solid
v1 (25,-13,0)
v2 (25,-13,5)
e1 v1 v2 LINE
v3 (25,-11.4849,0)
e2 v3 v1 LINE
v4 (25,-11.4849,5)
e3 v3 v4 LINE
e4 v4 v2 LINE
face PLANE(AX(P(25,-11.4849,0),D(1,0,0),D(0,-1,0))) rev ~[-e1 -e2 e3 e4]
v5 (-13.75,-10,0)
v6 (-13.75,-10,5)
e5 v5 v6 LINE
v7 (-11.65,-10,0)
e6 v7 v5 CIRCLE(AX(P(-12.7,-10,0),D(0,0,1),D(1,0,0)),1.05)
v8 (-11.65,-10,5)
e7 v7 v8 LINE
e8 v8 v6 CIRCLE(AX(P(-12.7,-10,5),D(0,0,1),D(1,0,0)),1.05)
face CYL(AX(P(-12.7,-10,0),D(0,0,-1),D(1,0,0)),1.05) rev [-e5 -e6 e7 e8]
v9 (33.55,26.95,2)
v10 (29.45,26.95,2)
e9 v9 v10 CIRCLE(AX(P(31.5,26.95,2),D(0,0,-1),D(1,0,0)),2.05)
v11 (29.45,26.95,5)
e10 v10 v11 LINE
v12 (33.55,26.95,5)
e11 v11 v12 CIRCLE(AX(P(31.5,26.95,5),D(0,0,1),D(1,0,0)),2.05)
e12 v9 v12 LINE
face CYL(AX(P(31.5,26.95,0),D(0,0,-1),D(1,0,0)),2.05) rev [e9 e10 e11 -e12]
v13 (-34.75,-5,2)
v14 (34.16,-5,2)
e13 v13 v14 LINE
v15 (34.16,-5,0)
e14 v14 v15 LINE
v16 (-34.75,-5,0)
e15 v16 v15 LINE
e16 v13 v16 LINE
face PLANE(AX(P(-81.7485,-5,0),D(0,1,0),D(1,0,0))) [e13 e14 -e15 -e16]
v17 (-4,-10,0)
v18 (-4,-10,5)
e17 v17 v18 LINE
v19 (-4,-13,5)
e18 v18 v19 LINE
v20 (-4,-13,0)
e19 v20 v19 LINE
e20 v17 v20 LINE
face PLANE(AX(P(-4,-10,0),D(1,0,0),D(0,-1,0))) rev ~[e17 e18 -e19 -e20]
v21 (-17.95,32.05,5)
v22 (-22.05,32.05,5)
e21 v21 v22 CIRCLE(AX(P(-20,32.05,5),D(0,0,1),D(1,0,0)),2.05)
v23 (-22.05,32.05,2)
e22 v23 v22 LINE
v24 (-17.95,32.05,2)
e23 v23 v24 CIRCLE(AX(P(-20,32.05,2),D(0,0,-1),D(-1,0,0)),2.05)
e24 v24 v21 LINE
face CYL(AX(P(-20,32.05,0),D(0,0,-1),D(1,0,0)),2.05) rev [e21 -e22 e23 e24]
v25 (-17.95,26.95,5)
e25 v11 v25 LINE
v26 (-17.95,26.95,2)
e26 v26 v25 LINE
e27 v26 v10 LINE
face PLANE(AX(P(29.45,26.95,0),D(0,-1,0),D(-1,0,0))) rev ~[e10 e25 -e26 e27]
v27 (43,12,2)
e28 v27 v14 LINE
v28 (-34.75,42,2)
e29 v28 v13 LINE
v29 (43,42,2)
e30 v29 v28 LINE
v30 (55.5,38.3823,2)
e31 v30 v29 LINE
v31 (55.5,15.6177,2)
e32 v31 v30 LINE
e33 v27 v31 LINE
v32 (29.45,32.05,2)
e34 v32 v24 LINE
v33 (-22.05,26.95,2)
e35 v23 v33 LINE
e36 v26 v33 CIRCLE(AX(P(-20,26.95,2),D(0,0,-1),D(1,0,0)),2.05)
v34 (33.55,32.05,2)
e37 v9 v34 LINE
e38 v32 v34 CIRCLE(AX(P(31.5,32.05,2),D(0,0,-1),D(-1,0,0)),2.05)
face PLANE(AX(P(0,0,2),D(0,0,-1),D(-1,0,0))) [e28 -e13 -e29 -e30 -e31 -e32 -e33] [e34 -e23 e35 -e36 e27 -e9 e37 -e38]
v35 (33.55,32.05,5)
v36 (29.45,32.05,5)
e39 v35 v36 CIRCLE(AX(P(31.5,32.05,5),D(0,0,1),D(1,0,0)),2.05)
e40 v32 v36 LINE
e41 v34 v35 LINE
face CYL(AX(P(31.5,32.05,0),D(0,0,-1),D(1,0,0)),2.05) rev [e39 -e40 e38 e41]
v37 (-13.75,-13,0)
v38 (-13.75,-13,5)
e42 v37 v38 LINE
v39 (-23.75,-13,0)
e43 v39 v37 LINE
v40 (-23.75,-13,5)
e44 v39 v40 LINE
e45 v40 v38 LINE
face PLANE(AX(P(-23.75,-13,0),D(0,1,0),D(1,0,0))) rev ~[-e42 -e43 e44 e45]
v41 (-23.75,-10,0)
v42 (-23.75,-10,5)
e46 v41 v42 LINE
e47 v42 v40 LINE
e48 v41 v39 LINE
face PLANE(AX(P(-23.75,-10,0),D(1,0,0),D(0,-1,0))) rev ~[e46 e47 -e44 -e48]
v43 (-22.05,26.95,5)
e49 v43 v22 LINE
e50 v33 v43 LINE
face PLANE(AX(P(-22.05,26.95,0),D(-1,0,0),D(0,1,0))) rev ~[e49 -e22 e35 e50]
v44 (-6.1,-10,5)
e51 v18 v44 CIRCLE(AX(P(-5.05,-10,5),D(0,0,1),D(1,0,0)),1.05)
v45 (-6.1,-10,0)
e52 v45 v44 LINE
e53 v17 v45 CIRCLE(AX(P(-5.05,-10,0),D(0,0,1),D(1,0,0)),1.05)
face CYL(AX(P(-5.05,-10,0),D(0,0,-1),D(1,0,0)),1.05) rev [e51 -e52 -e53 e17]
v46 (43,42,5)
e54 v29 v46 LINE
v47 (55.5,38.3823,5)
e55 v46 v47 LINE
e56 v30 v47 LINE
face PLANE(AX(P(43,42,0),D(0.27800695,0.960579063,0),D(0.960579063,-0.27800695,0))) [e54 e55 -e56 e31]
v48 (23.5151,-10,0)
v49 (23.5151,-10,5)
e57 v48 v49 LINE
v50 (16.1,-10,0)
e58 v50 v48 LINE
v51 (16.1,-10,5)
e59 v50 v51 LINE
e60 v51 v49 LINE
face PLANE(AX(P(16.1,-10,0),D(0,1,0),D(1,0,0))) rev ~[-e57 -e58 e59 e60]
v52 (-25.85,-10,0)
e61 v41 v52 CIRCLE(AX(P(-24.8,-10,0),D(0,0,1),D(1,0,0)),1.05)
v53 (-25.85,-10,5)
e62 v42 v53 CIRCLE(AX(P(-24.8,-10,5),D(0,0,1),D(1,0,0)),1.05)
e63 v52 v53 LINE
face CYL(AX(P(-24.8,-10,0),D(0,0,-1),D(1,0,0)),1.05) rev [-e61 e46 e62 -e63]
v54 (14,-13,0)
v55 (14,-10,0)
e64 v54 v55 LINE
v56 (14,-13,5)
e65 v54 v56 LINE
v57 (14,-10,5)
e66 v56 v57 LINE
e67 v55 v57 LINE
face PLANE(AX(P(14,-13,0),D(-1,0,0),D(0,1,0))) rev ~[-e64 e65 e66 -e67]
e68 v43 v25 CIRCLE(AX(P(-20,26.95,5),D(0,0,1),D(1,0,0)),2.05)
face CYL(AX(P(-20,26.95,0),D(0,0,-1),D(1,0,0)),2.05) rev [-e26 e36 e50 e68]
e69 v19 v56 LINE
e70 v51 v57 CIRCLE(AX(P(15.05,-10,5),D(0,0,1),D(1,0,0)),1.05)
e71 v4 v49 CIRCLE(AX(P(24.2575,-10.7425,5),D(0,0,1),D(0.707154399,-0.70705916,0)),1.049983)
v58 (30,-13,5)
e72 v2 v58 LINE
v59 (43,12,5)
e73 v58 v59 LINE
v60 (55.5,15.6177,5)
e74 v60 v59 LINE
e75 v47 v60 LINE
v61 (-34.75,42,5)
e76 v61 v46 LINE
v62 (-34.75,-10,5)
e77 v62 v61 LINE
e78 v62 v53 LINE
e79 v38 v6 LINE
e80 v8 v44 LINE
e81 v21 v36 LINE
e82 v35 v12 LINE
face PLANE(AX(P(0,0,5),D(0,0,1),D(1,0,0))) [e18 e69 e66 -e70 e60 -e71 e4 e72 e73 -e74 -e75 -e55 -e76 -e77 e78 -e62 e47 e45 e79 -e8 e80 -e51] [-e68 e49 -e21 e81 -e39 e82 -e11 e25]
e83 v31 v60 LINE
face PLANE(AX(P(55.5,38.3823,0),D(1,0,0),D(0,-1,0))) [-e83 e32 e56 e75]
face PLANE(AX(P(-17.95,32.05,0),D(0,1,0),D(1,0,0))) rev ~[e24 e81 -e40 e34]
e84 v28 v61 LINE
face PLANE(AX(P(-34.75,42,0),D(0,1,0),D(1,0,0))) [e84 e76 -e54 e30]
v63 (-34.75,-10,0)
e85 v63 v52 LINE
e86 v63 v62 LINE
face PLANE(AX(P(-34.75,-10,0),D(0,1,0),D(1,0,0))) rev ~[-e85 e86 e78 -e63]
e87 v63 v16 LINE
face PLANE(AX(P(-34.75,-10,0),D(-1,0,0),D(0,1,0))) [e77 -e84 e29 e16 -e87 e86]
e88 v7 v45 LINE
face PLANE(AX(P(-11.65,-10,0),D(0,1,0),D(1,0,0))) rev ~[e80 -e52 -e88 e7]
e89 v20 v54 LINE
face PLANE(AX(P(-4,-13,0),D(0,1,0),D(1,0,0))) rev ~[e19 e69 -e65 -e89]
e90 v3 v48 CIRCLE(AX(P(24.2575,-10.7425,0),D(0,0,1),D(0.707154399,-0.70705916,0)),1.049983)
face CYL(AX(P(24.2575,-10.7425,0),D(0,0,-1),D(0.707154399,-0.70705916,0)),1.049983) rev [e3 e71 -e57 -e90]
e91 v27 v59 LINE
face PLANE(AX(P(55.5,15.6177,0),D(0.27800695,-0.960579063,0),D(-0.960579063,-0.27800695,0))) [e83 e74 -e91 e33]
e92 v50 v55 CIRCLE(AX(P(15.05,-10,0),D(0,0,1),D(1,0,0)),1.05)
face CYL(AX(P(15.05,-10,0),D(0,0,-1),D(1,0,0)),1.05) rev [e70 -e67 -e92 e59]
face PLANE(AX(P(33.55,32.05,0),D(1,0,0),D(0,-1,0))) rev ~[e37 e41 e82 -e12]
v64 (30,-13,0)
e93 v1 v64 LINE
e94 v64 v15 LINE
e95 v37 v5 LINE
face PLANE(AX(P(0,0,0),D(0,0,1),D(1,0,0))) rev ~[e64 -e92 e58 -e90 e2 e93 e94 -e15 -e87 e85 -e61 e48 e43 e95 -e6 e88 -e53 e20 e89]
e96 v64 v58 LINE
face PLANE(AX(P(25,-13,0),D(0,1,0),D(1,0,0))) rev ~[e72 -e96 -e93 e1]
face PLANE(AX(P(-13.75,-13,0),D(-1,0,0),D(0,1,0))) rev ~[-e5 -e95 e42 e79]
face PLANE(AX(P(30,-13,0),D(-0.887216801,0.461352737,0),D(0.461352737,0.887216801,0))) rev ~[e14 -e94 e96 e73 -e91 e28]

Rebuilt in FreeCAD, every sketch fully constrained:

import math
import FreeCAD as App
import Part
import Sketcher
from FreeCAD import Vector

doc = App.newDocument("Part")
body = doc.addObject("PartDesign::Body", "Body")

# Sketch on XY plane
sketch1 = body.newObject("Sketcher::SketchObject", "Sketch")
sketch1.AttachmentSupport = (doc.getObject("XY_Plane"), [""])
sketch1.MapMode = "FlatFace"
sketch1.addGeometry([
    Part.ArcOfCircle(Part.Circle(Vector(24.3, -10.7, 0), Vector(0, 0, 1), 1), math.radians(-45), math.radians(135)),  # 0
    Part.LineSegment(Vector(25, -11.5, 0), Vector(25, -13, 0)),  # 1
    Part.LineSegment(Vector(25, -13, 0), Vector(30, -13, 0)),  # 2
    Part.LineSegment(Vector(30, -13, 0), Vector(43, 12, 0)),  # 3
    Part.LineSegment(Vector(43, 12, 0), Vector(55.5, 15.6, 0)),  # 4
    Part.LineSegment(Vector(55.5, 15.6, 0), Vector(55.5, 38.4, 0)),  # 5
    Part.LineSegment(Vector(55.5, 38.4, 0), Vector(43, 42, 0)),  # 6
    Part.LineSegment(Vector(43, 42, 0), Vector(-34.8, 42, 0)),  # 7
    Part.LineSegment(Vector(-34.8, 42, 0), Vector(-34.8, -10, 0)),  # 8
    Part.LineSegment(Vector(-34.8, -10, 0), Vector(-25.9, -10, 0)),  # 9
    Part.ArcOfCircle(Part.Circle(Vector(-24.8, -10, 0), Vector(0, 0, 1), 1.1), math.radians(0), math.radians(180)),  # 10
    Part.LineSegment(Vector(-23.8, -10, 0), Vector(-23.8, -13, 0)),  # 11
    Part.LineSegment(Vector(-23.8, -13, 0), Vector(-13.8, -13, 0)),  # 12
    Part.LineSegment(Vector(-13.8, -13, 0), Vector(-13.8, -10, 0)),  # 13
    Part.ArcOfCircle(Part.Circle(Vector(-12.7, -10, 0), Vector(0, 0, 1), 1), math.radians(0), math.radians(180)),  # 14
    Part.LineSegment(Vector(-11.7, -10, 0), Vector(-6.1, -10, 0)),  # 15
    Part.ArcOfCircle(Part.Circle(Vector(-5, -10, 0), Vector(0, 0, 1), 1), math.radians(0), math.radians(180)),  # 16
    Part.LineSegment(Vector(-4, -10, 0), Vector(-4, -13, 0)),  # 17
    Part.LineSegment(Vector(-4, -13, 0), Vector(14, -13, 0)),  # 18
    Part.LineSegment(Vector(14, -13, 0), Vector(14, -10, 0)),  # 19
    Part.ArcOfCircle(Part.Circle(Vector(15.1, -10, 0), Vector(0, 0, 1), 1.1), math.radians(0), math.radians(180)),  # 20
    Part.LineSegment(Vector(16.1, -10, 0), Vector(23.5, -10, 0)),  # 21
    Part.LineSegment(Vector(-22.1, 26.9, 0), Vector(-22.1, 32, 0)),  # 22
    Part.ArcOfCircle(Part.Circle(Vector(-20, 32, 0), Vector(0, 0, 1), 2), math.radians(0), math.radians(180)),  # 23
    Part.LineSegment(Vector(-17.9, 32, 0), Vector(29.4, 32, 0)),  # 24
    Part.ArcOfCircle(Part.Circle(Vector(31.5, 32, 0), Vector(0, 0, 1), 2), math.radians(0), math.radians(180)),  # 25
    Part.LineSegment(Vector(33.5, 32, 0), Vector(33.5, 26.9, 0)),  # 26
    Part.ArcOfCircle(Part.Circle(Vector(31.5, 26.9, 0), Vector(0, 0, 1), 2), math.radians(180), math.radians(360)),  # 27
    Part.LineSegment(Vector(29.4, 26.9, 0), Vector(-17.9, 26.9, 0)),  # 28
    Part.ArcOfCircle(Part.Circle(Vector(-20, 26.9, 0), Vector(0, 0, 1), 2), math.radians(180), math.radians(360)),  # 29
    Part.Circle(Vector(51, 19, 0), Vector(0, 0, 1), 1.6),  # 30
    Part.Circle(Vector(51, 35, 0), Vector(0, 0, 1), 1.6),  # 31
], False)
sketch1.addConstraint([
    Sketcher.Constraint("Coincident", 0, 1, 1, 1),
    Sketcher.Constraint("Coincident", 1, 2, 2, 1),
    Sketcher.Constraint("Coincident", 2, 2, 3, 1),
    Sketcher.Constraint("Coincident", 3, 2, 4, 1),
    Sketcher.Constraint("Coincident", 4, 2, 5, 1),
    Sketcher.Constraint("Coincident", 5, 2, 6, 1),
    Sketcher.Constraint("Coincident", 6, 2, 7, 1),
    Sketcher.Constraint("Coincident", 7, 2, 8, 1),
    Sketcher.Constraint("Coincident", 8, 2, 9, 1),
    Sketcher.Constraint("Coincident", 9, 2, 10, 2),
    Sketcher.Constraint("Tangent", 10, 1, 11, 1),
    Sketcher.Constraint("Coincident", 11, 2, 12, 1),
    Sketcher.Constraint("Coincident", 12, 2, 13, 1),
    Sketcher.Constraint("Tangent", 13, 2, 14, 2),
    Sketcher.Constraint("Coincident", 14, 1, 15, 1),
    Sketcher.Constraint("Coincident", 15, 2, 16, 2),
    Sketcher.Constraint("Tangent", 16, 1, 17, 1),
    Sketcher.Constraint("Coincident", 17, 2, 18, 1),
    Sketcher.Constraint("Coincident", 18, 2, 19, 1),
    Sketcher.Constraint("Tangent", 19, 2, 20, 2),
    Sketcher.Constraint("Coincident", 20, 1, 21, 1),
    Sketcher.Constraint("Coincident", 21, 2, 0, 2),
    Sketcher.Constraint("Tangent", 22, 2, 23, 2),
    Sketcher.Constraint("Coincident", 23, 1, 24, 1),
    Sketcher.Constraint("Coincident", 24, 2, 25, 2),
    Sketcher.Constraint("Tangent", 25, 1, 26, 1),
    Sketcher.Constraint("Tangent", 26, 2, 27, 2),
    Sketcher.Constraint("Coincident", 27, 1, 28, 1),
    Sketcher.Constraint("Coincident", 28, 2, 29, 2),
    Sketcher.Constraint("Tangent", 29, 1, 22, 1),
    Sketcher.Constraint("Vertical", 1),
    Sketcher.Constraint("Horizontal", 2),
    Sketcher.Constraint("Vertical", 5),
    Sketcher.Constraint("Horizontal", 7),
    Sketcher.Constraint("Vertical", 8),
    Sketcher.Constraint("Horizontal", 9),
    Sketcher.Constraint("Vertical", 11),
    Sketcher.Constraint("Horizontal", 12),
    Sketcher.Constraint("Vertical", 13),
    Sketcher.Constraint("Horizontal", 15),
    Sketcher.Constraint("Vertical", 17),
    Sketcher.Constraint("Horizontal", 18),
    Sketcher.Constraint("Vertical", 19),
    Sketcher.Constraint("Horizontal", 21),
    Sketcher.Constraint("Vertical", 22),
    Sketcher.Constraint("Horizontal", 24),
    Sketcher.Constraint("Vertical", 26),
    Sketcher.Constraint("Horizontal", 28),
    Sketcher.Constraint("Equal", 0, 10),
    Sketcher.Constraint("Equal", 10, 14),
    Sketcher.Constraint("Equal", 14, 16),
    Sketcher.Constraint("Equal", 16, 20),
    Sketcher.Constraint("Equal", 23, 25),
    Sketcher.Constraint("Equal", 25, 27),
    Sketcher.Constraint("Equal", 27, 29),
    Sketcher.Constraint("Equal", 30, 31),
    Sketcher.Constraint("Horizontal", 10, 3, 14, 3),
    Sketcher.Constraint("Horizontal", 14, 3, 16, 3),
    Sketcher.Constraint("Horizontal", 16, 3, 20, 3),
    Sketcher.Constraint("Horizontal", 23, 3, 25, 3),
    Sketcher.Constraint("Horizontal", 27, 3, 29, 3),
    Sketcher.Constraint("Horizontal", 20, 3, 8, 2),
    Sketcher.Constraint("Horizontal", 2, 2, 11, 2),
    Sketcher.Constraint("Horizontal", 13, 2, 14, 1),
    Sketcher.Constraint("Horizontal", 12, 2, 17, 2),
    Sketcher.Constraint("Horizontal", 19, 2, 20, 1),
    Sketcher.Constraint("Horizontal", 22, 2, 23, 1),
    Sketcher.Constraint("Horizontal", 26, 2, 27, 1),
    Sketcher.Constraint("Vertical", 30, 3, 31, 3),
    Sketcher.Constraint("Vertical", 3, 2, 6, 2),
    Sketcher.Constraint("Equal", 4, 6),
    Sketcher.Constraint("Diameter", 30, 3.1),
    Sketcher.Constraint("DistanceX", 2, 1, 2, 2, 5.0),
    Sketcher.Constraint("DistanceX", 12, 1, 12, 2, 10.0),
    Sketcher.Constraint("DistanceX", 18, 1, 18, 2, 18.0),
    Sketcher.Constraint("DistanceY", 8, 2, 8, 1, 52.0),
    Sketcher.Constraint("DistanceY", 11, 2, 11, 1, 3.0),
    Sketcher.Constraint("Radius", 0, 1.05),
    Sketcher.Constraint("Radius", 23, 2.05),
    Sketcher.Constraint("DistanceY", 10, 3, -1, 1, 10.0),
    Sketcher.Constraint("DistanceX", -1, 1, 0, 1, 25.0),
    Sketcher.Constraint("DistanceX", -1, 1, 3, 2, 43.0),
    Sketcher.Constraint("DistanceY", 30, 3, 31, 3, 16.0),
    Sketcher.Constraint("DistanceX", 3, 2, 30, 3, 8.0),
    Sketcher.Constraint("DistanceY", 2, 2, 3, 2, 25.0),
    Sketcher.Constraint("DistanceX", 18, 2, 2, 2, 16.0),
    Sketcher.Constraint("DistanceX", -1, 1, 4, 2, 55.5),
    Sketcher.Constraint("DistanceX", 9, 1, 9, 2, 8.9),
    Sketcher.Constraint("DistanceX", 24, 1, 24, 2, 47.4),
    Sketcher.Constraint("DistanceY", 22, 1, 22, 2, 5.1),
    Sketcher.Constraint("DistanceX", 23, 3, -1, 1, 20.0),
    Sketcher.Constraint("DistanceY", -1, 1, 30, 3, 19.0),
    Sketcher.Constraint("DistanceX", 7, 2, 7, 1, 77.75),
    Sketcher.Constraint("DistanceX", 21, 1, 21, 2, 7.415),
    Sketcher.Constraint("DistanceY", -1, 1, 23, 3, 32.05),
    Sketcher.Constraint("Distance", 4, 13.013),
    Sketcher.Constraint("DistanceX", -1, 1, 0, 3, 24.2575),
])
pad1 = body.newObject("PartDesign::Pad", "Pad")
pad1.Profile = sketch1
pad1.Length = 5

# Sketch on XY plane
sketch2 = body.newObject("Sketcher::SketchObject", "Sketch001")
sketch2.AttachmentSupport = (doc.getObject("XY_Plane"), [""])
sketch2.MapMode = "FlatFace"
sketch2.addGeometry([
    Part.LineSegment(Vector(-81.7, 58, 0), Vector(68, 58, 0)),  # 0
    Part.LineSegment(Vector(68, 58, 0), Vector(68, -5, 0)),  # 1
    Part.LineSegment(Vector(68, -5, 0), Vector(-81.7, -5, 0)),  # 2
    Part.LineSegment(Vector(-81.7, -5, 0), Vector(-81.7, 58, 0)),  # 3
    Part.Circle(Vector(51, 19, 0), Vector(0, 0, 1), 1.6),  # 4
    Part.Circle(Vector(51, 35, 0), Vector(0, 0, 1), 1.6),  # 5
    Part.ArcOfCircle(Part.Circle(Vector(-20, 26.9, 0), Vector(0, 0, 1), 2.1), math.radians(180), math.radians(360)),  # 6
    Part.LineSegment(Vector(-17.9, 26.9, 0), Vector(29.4, 26.9, 0)),  # 7
    Part.ArcOfCircle(Part.Circle(Vector(31.5, 26.9, 0), Vector(0, 0, 1), 2), math.radians(180), math.radians(360)),  # 8
    Part.LineSegment(Vector(33.5, 26.9, 0), Vector(33.5, 32, 0)),  # 9
    Part.ArcOfCircle(Part.Circle(Vector(31.5, 32, 0), Vector(0, 0, 1), 2.1), math.radians(0), math.radians(180)),  # 10
    Part.LineSegment(Vector(29.4, 32, 0), Vector(-17.9, 32, 0)),  # 11
    Part.ArcOfCircle(Part.Circle(Vector(-20, 32, 0), Vector(0, 0, 1), 2.1), math.radians(0), math.radians(180)),  # 12
    Part.LineSegment(Vector(-22.1, 32, 0), Vector(-22.1, 26.9, 0)),  # 13
], False)
sketch2.addConstraint([
    Sketcher.Constraint("Coincident", 0, 2, 1, 1),
    Sketcher.Constraint("Coincident", 1, 2, 2, 1),
    Sketcher.Constraint("Coincident", 2, 2, 3, 1),
    Sketcher.Constraint("Coincident", 3, 2, 0, 1),
    Sketcher.Constraint("Coincident", 6, 2, 7, 1),
    Sketcher.Constraint("Coincident", 7, 2, 8, 1),
    Sketcher.Constraint("Tangent", 8, 2, 9, 1),
    Sketcher.Constraint("Tangent", 9, 2, 10, 1),
    Sketcher.Constraint("Coincident", 10, 2, 11, 1),
    Sketcher.Constraint("Coincident", 11, 2, 12, 1),
    Sketcher.Constraint("Tangent", 12, 2, 13, 1),
    Sketcher.Constraint("Tangent", 13, 2, 6, 1),
    Sketcher.Constraint("Horizontal", 0),
    Sketcher.Constraint("Vertical", 1),
    Sketcher.Constraint("Horizontal", 2),
    Sketcher.Constraint("Vertical", 3),
    Sketcher.Constraint("Horizontal", 7),
    Sketcher.Constraint("Vertical", 9),
    Sketcher.Constraint("Horizontal", 11),
    Sketcher.Constraint("Vertical", 13),
    Sketcher.Constraint("Equal", 4, 5),
    Sketcher.Constraint("Equal", 6, 8),
    Sketcher.Constraint("Equal", 8, 10),
    Sketcher.Constraint("Equal", 10, 12),
    Sketcher.Constraint("Horizontal", 6, 3, 8, 3),
    Sketcher.Constraint("Horizontal", 10, 3, 12, 3),
    Sketcher.Constraint("Horizontal", 8, 3, 6, 2),
    Sketcher.Constraint("Horizontal", 9, 2, 10, 2),
    Sketcher.Constraint("Vertical", 4, 3, 5, 3),
    Sketcher.Constraint("DistanceY", 1, 2, -1, 1, 5.0),
    Sketcher.Constraint("Diameter", 4, 3.1),
    Sketcher.Constraint("Radius", 6, 2.05),
    Sketcher.Constraint("DistanceX", 7, 1, 7, 2, 47.4),
    Sketcher.Constraint("DistanceY", 9, 1, 9, 2, 5.1),
    Sketcher.Constraint("DistanceX", -1, 1, 4, 3, 51.0),
    Sketcher.Constraint("DistanceY", -1, 1, 4, 3, 19.0),
    Sketcher.Constraint("DistanceY", -1, 1, 5, 3, 35.0),
    Sketcher.Constraint("DistanceX", 6, 3, -1, 1, 20.0),
    Sketcher.Constraint("DistanceY", -1, 1, 6, 3, 26.95),
    Sketcher.Constraint("DistanceX", 0, 1, 0, 2, 149.7365),
    Sketcher.Constraint("DistanceY", 1, 2, 1, 1, 62.9937),
    Sketcher.Constraint("DistanceX", -1, 1, 0, 2, 67.988),
])
pocket1 = body.newObject("PartDesign::Pocket", "Pocket")
pocket1.Profile = sketch2
pocket1.Length = 2
pocket1.Reversed = True

# Sketch on XY plane
sketch3 = body.newObject("Sketcher::SketchObject", "Sketch002")
sketch3.AttachmentSupport = (doc.getObject("XY_Plane"), [""])
sketch3.MapMode = "FlatFace"
sketch3.AttachmentOffset = App.Placement(Vector(0, 0, 5), App.Rotation())
sketch3.addGeometry([
    Part.Circle(Vector(51, 35, 0), Vector(0, 0, 1), 1.6),
    Part.Circle(Vector(51, 27, 0), Vector(0, 0, 1), 3),
    Part.Circle(Vector(51, 19, 0), Vector(0, 0, 1), 1.6),
], False)
sketch3.addConstraint([
    Sketcher.Constraint("Equal", 0, 2),
    Sketcher.Constraint("Vertical", 0, 3, 1, 3),
    Sketcher.Constraint("Vertical", 1, 3, 2, 3),
    Sketcher.Constraint("Diameter", 1, 6.0),
    Sketcher.Constraint("Diameter", 0, 3.1),
    Sketcher.Constraint("DistanceX", -1, 1, 0, 3, 51.0),
    Sketcher.Constraint("DistanceY", -1, 1, 0, 3, 35.0),
    Sketcher.Constraint("DistanceY", -1, 1, 1, 3, 27.0),
    Sketcher.Constraint("DistanceY", -1, 1, 2, 3, 19.0),
])
pad2 = body.newObject("PartDesign::Pad", "Pad001")
pad2.Profile = sketch3
pad2.Length = 3
pad2.Reversed = True

doc.recompute()
